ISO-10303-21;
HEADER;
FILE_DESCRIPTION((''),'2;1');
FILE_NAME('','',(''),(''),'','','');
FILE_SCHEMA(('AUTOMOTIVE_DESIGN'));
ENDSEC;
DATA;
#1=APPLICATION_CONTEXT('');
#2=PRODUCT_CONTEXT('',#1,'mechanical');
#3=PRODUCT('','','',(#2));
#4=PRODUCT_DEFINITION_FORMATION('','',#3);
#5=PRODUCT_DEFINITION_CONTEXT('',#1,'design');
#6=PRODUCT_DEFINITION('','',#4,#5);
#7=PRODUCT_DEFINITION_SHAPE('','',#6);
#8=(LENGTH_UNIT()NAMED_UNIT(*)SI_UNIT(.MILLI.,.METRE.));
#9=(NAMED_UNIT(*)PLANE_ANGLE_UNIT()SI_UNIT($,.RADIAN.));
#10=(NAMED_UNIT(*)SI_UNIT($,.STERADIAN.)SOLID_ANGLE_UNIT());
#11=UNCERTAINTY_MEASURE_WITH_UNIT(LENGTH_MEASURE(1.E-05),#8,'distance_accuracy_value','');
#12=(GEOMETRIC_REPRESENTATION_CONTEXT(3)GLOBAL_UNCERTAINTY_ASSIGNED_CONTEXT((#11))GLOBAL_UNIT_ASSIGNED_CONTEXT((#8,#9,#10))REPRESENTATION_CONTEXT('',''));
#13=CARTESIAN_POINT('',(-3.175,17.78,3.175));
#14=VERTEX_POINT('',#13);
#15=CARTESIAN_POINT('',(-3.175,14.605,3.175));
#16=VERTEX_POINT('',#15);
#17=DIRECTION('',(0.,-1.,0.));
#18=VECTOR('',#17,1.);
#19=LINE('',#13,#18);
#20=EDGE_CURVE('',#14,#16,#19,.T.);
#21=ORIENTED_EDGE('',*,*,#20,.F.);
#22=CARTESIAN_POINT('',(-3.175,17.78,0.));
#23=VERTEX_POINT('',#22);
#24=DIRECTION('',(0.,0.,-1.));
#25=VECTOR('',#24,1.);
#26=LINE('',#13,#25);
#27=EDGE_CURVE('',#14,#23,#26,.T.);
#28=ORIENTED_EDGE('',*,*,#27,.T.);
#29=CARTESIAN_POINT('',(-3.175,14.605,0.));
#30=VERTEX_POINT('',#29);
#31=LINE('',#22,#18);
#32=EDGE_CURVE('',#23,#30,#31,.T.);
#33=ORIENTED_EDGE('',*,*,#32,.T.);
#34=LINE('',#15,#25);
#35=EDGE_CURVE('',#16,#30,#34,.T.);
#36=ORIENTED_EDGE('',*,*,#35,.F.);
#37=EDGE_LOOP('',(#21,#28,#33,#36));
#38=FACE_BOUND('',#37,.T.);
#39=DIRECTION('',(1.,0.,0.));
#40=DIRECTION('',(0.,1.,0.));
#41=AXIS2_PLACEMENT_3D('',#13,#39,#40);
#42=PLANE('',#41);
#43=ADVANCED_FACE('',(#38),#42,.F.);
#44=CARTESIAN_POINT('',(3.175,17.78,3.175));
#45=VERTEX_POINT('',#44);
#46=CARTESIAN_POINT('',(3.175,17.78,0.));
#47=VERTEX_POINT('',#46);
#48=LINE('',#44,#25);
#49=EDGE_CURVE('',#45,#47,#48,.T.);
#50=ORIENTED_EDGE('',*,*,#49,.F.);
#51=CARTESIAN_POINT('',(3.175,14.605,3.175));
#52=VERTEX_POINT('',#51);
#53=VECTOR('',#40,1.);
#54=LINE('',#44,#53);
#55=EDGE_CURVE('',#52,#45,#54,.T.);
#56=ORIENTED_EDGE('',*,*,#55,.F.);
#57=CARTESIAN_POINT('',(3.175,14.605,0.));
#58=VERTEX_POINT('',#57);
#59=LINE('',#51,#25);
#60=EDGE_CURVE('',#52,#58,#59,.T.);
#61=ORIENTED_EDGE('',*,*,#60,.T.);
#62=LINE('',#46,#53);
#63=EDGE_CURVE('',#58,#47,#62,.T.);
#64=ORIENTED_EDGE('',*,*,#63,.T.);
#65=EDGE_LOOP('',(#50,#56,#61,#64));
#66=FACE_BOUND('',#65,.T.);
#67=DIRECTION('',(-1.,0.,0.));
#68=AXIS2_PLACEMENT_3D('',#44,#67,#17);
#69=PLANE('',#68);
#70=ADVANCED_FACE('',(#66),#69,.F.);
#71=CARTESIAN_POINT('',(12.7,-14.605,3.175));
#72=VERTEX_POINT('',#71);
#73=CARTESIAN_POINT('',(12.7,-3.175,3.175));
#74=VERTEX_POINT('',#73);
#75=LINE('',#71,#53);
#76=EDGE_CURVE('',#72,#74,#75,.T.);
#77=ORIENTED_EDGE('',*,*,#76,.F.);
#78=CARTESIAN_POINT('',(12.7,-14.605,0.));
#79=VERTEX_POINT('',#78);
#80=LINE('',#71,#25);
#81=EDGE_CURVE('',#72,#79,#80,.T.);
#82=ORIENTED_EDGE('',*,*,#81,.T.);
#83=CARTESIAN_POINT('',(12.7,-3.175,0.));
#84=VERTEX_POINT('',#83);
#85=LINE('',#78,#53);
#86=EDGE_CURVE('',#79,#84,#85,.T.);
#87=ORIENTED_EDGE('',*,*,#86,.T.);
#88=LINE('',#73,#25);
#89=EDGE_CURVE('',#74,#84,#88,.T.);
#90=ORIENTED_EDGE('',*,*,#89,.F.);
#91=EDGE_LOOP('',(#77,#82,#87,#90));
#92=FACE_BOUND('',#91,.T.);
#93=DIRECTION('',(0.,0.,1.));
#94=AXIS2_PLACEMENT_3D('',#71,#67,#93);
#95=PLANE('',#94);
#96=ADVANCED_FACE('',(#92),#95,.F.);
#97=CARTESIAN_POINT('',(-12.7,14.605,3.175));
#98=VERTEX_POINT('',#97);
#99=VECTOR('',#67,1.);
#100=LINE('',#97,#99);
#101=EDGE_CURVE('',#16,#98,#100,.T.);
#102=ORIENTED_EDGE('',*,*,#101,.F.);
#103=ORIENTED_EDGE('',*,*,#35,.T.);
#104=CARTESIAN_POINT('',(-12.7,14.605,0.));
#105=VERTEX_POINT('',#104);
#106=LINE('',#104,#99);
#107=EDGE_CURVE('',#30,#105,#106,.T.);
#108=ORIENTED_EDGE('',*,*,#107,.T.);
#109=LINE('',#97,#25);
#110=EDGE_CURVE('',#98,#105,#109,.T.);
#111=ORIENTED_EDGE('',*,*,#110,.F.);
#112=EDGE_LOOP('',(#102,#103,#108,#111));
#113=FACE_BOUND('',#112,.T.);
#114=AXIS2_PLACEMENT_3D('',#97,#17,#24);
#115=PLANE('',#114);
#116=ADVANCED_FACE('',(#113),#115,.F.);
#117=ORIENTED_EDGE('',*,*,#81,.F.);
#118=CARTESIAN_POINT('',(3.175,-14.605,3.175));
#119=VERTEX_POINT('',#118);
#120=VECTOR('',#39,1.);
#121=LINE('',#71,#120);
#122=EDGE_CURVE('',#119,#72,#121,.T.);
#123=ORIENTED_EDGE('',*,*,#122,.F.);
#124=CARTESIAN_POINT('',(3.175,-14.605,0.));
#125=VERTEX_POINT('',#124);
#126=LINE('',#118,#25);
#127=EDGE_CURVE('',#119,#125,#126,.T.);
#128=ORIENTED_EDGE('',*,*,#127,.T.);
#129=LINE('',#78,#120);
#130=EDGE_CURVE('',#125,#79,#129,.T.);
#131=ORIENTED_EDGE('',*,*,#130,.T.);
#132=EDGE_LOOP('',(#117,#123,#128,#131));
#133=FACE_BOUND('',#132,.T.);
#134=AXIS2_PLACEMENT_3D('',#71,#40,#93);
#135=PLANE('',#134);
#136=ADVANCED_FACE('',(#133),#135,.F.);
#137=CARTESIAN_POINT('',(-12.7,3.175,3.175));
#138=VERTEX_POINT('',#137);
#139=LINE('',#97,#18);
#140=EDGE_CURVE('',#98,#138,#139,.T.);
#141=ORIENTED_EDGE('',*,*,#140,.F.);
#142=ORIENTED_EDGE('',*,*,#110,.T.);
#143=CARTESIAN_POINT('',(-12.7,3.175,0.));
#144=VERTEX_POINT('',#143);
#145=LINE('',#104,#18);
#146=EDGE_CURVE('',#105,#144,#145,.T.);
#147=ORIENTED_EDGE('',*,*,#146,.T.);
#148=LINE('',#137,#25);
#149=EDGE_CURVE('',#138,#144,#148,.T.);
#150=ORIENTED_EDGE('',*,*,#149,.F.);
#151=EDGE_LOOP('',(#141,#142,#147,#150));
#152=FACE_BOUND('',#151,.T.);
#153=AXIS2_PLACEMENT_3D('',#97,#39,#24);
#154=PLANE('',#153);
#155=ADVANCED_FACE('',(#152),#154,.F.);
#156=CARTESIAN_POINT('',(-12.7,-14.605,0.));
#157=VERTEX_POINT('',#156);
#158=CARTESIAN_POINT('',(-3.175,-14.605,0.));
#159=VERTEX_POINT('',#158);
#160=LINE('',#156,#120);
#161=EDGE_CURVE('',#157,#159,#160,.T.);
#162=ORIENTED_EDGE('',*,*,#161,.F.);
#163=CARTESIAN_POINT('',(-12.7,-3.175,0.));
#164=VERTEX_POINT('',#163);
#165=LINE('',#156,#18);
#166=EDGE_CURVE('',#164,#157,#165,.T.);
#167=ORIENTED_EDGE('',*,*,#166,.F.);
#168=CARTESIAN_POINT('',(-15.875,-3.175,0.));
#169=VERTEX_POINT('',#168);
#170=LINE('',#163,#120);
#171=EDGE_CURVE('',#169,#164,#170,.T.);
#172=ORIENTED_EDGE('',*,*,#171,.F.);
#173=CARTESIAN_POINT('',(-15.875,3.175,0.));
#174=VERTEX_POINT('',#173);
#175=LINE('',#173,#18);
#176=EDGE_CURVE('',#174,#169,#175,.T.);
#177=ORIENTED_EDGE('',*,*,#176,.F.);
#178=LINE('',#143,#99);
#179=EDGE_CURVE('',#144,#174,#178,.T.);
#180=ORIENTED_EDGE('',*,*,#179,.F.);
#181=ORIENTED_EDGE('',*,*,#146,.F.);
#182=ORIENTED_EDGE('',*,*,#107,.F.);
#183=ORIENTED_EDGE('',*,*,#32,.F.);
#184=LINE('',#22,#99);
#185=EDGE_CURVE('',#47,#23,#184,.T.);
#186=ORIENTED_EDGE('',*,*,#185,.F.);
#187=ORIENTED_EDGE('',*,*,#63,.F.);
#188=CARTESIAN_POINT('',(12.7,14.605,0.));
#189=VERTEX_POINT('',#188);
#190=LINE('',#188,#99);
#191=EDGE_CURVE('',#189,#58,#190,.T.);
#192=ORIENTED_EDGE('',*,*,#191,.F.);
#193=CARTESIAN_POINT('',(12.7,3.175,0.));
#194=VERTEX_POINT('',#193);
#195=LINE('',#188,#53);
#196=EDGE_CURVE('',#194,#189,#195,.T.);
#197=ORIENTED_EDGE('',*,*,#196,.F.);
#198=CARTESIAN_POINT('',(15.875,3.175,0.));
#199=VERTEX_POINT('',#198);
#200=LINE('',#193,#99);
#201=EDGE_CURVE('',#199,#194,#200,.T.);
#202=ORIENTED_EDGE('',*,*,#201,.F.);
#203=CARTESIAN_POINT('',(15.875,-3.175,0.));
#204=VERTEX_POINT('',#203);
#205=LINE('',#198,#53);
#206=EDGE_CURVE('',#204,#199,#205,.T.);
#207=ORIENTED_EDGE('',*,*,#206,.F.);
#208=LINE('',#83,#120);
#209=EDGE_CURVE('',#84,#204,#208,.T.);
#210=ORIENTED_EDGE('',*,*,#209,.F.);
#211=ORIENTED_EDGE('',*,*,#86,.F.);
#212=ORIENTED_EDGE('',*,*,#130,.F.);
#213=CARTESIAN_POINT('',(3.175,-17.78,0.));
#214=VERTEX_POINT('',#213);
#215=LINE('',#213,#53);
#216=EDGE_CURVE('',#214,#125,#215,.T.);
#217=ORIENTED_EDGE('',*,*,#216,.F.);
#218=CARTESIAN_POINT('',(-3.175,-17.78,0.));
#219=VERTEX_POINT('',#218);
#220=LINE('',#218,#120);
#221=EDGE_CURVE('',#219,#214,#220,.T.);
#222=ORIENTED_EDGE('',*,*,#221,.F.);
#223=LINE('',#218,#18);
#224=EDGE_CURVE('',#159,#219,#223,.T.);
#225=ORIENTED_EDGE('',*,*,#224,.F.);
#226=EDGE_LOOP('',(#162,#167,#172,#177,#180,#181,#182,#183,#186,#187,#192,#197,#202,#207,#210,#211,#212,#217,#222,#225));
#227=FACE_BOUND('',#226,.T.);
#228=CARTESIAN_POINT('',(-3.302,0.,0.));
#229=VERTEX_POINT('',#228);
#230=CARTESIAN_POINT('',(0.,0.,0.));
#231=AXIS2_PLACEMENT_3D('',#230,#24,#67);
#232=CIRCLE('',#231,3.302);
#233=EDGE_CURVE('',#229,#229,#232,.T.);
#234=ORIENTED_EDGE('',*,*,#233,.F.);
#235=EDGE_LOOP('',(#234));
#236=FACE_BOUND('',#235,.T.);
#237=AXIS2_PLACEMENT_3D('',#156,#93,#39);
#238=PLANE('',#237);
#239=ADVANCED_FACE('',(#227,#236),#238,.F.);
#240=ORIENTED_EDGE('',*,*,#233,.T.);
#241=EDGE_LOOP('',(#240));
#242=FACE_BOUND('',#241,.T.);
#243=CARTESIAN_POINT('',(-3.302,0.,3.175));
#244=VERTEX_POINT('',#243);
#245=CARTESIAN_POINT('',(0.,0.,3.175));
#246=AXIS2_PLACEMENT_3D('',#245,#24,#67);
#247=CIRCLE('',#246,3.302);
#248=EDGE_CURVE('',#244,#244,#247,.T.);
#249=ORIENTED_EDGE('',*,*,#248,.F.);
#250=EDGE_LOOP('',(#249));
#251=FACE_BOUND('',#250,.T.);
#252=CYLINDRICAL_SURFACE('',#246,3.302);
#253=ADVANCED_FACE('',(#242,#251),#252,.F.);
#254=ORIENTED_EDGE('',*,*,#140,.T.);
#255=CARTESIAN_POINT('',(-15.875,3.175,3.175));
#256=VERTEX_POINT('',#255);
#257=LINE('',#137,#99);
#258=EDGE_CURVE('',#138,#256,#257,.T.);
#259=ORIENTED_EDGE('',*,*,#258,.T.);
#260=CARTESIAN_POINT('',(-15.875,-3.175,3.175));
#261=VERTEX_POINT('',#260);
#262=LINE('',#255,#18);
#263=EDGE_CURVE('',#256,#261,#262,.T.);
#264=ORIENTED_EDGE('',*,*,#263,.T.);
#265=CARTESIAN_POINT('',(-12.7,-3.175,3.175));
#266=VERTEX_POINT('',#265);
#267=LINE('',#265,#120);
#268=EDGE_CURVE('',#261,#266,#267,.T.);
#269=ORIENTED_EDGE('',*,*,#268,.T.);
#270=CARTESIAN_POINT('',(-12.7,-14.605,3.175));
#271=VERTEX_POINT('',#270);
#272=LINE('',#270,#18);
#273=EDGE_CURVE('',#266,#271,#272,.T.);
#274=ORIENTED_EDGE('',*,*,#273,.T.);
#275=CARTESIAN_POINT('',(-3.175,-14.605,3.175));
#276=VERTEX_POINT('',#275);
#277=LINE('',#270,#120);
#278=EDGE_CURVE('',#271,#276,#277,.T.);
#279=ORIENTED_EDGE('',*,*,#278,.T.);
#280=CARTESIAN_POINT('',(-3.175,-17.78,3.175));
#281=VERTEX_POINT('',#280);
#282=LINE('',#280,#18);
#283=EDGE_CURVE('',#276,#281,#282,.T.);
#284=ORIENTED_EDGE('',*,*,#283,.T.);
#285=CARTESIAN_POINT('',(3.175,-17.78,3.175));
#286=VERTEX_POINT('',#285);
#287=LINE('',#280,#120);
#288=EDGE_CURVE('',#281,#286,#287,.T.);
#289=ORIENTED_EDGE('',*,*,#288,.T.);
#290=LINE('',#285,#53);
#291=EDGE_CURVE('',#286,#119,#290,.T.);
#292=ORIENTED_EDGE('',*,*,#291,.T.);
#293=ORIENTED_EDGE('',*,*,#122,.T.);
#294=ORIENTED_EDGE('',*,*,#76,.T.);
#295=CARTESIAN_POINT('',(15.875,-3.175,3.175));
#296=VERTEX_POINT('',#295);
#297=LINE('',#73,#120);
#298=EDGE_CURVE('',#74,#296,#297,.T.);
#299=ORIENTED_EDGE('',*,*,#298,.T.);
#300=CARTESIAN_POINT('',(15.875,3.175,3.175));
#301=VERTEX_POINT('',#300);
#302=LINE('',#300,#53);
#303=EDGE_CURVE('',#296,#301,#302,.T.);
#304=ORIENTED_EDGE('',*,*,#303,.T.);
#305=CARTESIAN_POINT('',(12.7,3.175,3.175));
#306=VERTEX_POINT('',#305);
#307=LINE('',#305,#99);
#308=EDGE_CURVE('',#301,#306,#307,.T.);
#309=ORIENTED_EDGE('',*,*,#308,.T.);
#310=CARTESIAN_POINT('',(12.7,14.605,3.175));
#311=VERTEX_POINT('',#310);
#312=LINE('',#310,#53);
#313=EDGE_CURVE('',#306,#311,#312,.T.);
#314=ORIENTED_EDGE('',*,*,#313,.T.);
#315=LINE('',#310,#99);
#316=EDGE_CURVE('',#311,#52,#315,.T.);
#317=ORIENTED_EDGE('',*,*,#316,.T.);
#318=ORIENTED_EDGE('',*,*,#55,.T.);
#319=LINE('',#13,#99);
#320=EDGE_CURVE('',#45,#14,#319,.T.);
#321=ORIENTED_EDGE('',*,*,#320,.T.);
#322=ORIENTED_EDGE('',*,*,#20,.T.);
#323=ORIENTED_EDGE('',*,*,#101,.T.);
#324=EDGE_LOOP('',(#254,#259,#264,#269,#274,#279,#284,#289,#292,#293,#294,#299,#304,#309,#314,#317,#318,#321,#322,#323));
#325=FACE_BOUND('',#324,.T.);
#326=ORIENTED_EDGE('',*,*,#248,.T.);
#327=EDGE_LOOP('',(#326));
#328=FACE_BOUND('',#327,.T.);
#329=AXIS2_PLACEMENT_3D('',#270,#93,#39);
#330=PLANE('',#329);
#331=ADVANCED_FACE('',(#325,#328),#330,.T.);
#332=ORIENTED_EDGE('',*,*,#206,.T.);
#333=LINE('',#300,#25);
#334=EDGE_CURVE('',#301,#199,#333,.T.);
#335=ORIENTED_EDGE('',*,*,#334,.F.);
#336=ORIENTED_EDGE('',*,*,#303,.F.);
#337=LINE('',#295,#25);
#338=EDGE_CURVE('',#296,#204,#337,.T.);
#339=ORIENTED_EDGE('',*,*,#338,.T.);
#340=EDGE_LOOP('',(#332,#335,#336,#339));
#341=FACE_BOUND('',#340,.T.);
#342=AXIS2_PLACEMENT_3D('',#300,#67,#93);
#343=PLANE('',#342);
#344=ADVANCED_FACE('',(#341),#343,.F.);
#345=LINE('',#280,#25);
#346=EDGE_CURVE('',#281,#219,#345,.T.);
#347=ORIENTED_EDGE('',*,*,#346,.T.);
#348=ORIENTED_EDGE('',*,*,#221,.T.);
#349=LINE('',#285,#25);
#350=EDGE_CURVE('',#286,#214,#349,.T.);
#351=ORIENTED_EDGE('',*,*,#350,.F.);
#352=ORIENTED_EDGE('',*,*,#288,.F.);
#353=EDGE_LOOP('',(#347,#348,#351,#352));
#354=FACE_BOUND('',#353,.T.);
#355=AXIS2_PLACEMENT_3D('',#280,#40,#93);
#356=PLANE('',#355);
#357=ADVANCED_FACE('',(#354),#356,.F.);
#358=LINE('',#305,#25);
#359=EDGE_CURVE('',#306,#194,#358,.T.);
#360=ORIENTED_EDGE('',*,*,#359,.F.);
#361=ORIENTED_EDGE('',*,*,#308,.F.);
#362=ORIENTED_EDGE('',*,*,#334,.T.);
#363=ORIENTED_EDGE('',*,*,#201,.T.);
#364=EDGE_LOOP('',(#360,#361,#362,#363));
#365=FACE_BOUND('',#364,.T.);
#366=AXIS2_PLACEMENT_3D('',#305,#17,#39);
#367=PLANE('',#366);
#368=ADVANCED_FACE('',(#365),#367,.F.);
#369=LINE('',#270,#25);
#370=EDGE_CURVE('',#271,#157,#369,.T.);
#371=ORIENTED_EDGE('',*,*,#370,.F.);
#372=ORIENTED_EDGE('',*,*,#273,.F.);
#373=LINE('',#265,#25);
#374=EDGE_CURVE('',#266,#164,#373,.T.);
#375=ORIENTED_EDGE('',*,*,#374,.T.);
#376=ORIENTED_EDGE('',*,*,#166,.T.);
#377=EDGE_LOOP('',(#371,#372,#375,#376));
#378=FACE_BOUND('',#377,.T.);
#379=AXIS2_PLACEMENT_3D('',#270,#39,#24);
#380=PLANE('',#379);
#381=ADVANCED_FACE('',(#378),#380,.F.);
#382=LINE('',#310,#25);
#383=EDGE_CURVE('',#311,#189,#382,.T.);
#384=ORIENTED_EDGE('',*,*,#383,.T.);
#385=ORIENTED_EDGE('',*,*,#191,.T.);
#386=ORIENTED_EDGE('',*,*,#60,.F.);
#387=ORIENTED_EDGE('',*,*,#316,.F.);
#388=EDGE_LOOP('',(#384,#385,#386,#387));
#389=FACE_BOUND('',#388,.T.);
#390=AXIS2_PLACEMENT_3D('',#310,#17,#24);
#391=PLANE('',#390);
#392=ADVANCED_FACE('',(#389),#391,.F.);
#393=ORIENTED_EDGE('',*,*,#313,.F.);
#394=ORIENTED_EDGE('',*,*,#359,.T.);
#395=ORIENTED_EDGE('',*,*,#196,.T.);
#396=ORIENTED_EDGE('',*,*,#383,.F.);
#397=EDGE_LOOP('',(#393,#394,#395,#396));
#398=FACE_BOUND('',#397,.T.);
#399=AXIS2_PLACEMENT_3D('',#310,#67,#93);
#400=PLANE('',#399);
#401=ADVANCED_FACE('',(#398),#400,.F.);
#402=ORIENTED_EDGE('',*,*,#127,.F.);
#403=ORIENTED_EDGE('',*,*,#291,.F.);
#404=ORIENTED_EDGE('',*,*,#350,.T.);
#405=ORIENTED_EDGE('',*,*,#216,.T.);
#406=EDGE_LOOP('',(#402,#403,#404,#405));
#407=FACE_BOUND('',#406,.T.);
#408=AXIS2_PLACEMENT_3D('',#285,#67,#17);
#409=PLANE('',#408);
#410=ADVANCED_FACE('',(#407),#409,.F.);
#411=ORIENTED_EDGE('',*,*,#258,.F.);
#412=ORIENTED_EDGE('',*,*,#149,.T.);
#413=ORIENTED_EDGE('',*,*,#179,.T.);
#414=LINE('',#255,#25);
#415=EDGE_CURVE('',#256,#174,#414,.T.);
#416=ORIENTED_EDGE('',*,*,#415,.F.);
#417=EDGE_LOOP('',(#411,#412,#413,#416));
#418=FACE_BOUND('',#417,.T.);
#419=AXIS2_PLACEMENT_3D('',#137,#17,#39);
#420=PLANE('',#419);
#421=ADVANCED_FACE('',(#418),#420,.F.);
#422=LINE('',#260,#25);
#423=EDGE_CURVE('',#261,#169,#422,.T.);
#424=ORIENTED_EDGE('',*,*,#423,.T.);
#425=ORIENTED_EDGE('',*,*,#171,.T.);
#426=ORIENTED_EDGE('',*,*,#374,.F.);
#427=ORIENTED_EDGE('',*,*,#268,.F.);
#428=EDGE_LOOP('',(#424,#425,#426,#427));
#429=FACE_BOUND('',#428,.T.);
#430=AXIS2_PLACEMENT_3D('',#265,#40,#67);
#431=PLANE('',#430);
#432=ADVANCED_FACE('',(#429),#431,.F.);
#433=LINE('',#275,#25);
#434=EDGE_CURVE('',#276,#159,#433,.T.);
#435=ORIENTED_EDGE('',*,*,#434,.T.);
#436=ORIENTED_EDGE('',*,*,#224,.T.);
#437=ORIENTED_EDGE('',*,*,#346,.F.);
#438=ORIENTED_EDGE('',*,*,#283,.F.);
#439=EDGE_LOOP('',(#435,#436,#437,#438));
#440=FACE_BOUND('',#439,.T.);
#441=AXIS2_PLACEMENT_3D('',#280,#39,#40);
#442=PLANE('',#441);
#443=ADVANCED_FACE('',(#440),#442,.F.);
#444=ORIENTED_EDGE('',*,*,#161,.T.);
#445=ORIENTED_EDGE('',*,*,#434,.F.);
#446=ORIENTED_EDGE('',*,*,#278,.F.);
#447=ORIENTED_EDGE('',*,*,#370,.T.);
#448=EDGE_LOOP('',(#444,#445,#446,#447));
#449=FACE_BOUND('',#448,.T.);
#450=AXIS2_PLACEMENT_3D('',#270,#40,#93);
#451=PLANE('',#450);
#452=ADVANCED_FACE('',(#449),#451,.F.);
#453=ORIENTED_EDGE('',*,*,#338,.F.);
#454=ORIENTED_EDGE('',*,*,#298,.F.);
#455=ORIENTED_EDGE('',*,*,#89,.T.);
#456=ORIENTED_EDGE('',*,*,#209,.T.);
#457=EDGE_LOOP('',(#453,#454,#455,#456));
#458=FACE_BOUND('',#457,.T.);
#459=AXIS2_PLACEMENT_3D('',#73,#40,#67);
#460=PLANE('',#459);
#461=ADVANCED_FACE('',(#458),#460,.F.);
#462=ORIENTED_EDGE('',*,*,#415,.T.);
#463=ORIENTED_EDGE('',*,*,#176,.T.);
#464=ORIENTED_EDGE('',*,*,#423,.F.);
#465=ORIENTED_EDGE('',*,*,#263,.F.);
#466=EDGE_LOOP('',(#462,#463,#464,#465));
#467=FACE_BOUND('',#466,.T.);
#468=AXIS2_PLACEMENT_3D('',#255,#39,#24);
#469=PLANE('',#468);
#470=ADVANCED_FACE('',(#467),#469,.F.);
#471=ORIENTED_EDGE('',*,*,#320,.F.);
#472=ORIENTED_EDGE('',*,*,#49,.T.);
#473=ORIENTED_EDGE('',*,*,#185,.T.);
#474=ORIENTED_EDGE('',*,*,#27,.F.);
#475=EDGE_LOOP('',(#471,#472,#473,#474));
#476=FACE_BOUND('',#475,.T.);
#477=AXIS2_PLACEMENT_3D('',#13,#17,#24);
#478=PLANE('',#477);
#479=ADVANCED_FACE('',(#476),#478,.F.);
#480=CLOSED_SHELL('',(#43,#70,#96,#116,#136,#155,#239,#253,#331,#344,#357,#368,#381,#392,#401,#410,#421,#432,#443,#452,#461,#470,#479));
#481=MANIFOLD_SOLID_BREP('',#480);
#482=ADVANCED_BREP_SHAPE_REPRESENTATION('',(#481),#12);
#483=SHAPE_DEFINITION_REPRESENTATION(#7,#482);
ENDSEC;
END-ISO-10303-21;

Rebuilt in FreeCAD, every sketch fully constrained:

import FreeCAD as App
import Part
import Sketcher
Q = App.Units.Quantity


def add_polygon(sketch, points):
    """Adds a closed chain of lines whose ends are joined by coincident constraints."""
    first, n = sketch.GeometryCount, len(points)
    for a, b in zip(points, points[1:] + points[:1]):
        sketch.addGeometry(Part.LineSegment(App.Vector(*a, 0), App.Vector(*b, 0)), False)
    for i in range(n):
        sketch.addConstraint(Sketcher.Constraint("Coincident", first + i, 2, first + (i + 1) % n, 1))

doc = App.newDocument("Part")
body = doc.addObject("PartDesign::Body", "Body")

# Sketch on XY plane
sketch1 = body.newObject("Sketcher::SketchObject", "Sketch")
sketch1.AttachmentSupport = (doc.getObject("XY_Plane"), [""])
sketch1.MapMode = "FlatFace"
add_polygon(sketch1, [(-3.175, 14.605), (-12.7, 14.605), (-12.7, 3.175), (-15.875, 3.175), (-15.875, -3.175), (-12.7, -3.175), (-12.7, -14.605), (-3.175, -14.605), (-3.175, -17.78), (3.175, -17.78), (3.175, -14.605), (12.7, -14.605), (12.7, -3.175), (15.875, -3.175), (15.875, 3.175), (12.7, 3.175), (12.7, 14.605), (3.175, 14.605), (3.175, 17.78), (-3.175, 17.78)])  # lines 0-19
sketch1.addConstraint([
    Sketcher.Constraint("Horizontal", 0),
    Sketcher.Constraint("Vertical", 1),
    Sketcher.Constraint("Horizontal", 2),
    Sketcher.Constraint("Vertical", 3),
    Sketcher.Constraint("Horizontal", 4),
    Sketcher.Constraint("Vertical", 5),
    Sketcher.Constraint("Horizontal", 6),
    Sketcher.Constraint("Vertical", 7),
    Sketcher.Constraint("Horizontal", 8),
    Sketcher.Constraint("Vertical", 9),
    Sketcher.Constraint("Horizontal", 10),
    Sketcher.Constraint("Vertical", 11),
    Sketcher.Constraint("Horizontal", 12),
    Sketcher.Constraint("Vertical", 13),
    Sketcher.Constraint("Horizontal", 14),
    Sketcher.Constraint("Vertical", 15),
    Sketcher.Constraint("Horizontal", 16),
    Sketcher.Constraint("Vertical", 17),
    Sketcher.Constraint("Horizontal", 18),
    Sketcher.Constraint("Vertical", 19),
    Sketcher.Constraint("Symmetric", 0, 2, 10, 2, -1, 1),
    Sketcher.Constraint("Symmetric", 2, 2, 12, 2, -1, 1),
    Sketcher.Constraint("Symmetric", 4, 2, 14, 2, -1, 1),
    Sketcher.Constraint("Symmetric", 6, 2, 16, 2, -1, 1),
    Sketcher.Constraint("Symmetric", 8, 2, 18, 2, -1, 1),
    Sketcher.Constraint("Symmetric", 6, 2, 9, 2, -2),
    Sketcher.Constraint("Symmetric", 4, 2, 11, 2, -2),
    Sketcher.Constraint("Equal", 18, 3),
    Sketcher.Constraint("Equal", 14, 7),
    Sketcher.Constraint("DistanceX", 5, 2, 10, 2, Q("1 in")),
    Sketcher.Constraint("DistanceX", 8, 1, 8, 2, Q("0.25 in")),
    Sketcher.Constraint("DistanceY", 1, 2, 1, 1, Q("0.45 in")),
    Sketcher.Constraint("DistanceY", 7, 2, -1, 1, Q("0.7 in")),
])
pad1 = body.newObject("PartDesign::Pad", "Pad")
pad1.Profile = sketch1
pad1.Length = Q("0.125 in")

# Sketch on XY plane
sketch2 = body.newObject("Sketcher::SketchObject", "Sketch001")
sketch2.AttachmentSupport = (doc.getObject("XY_Plane"), [""])
sketch2.MapMode = "FlatFace"
sketch2.addGeometry(Part.Circle(App.Vector(0, 0, 0), App.Vector(0, 0, 1), 3.302), False)
sketch2.addConstraint([
    Sketcher.Constraint("Coincident", 0, 3, -1, 1),
    Sketcher.Constraint("Diameter", 0, Q("0.26 in")),
])
pocket1 = body.newObject("PartDesign::Pocket", "Pocket")
pocket1.Profile = sketch2
pocket1.Length = Q("0.125 in")
pocket1.Reversed = True

doc.recompute()
